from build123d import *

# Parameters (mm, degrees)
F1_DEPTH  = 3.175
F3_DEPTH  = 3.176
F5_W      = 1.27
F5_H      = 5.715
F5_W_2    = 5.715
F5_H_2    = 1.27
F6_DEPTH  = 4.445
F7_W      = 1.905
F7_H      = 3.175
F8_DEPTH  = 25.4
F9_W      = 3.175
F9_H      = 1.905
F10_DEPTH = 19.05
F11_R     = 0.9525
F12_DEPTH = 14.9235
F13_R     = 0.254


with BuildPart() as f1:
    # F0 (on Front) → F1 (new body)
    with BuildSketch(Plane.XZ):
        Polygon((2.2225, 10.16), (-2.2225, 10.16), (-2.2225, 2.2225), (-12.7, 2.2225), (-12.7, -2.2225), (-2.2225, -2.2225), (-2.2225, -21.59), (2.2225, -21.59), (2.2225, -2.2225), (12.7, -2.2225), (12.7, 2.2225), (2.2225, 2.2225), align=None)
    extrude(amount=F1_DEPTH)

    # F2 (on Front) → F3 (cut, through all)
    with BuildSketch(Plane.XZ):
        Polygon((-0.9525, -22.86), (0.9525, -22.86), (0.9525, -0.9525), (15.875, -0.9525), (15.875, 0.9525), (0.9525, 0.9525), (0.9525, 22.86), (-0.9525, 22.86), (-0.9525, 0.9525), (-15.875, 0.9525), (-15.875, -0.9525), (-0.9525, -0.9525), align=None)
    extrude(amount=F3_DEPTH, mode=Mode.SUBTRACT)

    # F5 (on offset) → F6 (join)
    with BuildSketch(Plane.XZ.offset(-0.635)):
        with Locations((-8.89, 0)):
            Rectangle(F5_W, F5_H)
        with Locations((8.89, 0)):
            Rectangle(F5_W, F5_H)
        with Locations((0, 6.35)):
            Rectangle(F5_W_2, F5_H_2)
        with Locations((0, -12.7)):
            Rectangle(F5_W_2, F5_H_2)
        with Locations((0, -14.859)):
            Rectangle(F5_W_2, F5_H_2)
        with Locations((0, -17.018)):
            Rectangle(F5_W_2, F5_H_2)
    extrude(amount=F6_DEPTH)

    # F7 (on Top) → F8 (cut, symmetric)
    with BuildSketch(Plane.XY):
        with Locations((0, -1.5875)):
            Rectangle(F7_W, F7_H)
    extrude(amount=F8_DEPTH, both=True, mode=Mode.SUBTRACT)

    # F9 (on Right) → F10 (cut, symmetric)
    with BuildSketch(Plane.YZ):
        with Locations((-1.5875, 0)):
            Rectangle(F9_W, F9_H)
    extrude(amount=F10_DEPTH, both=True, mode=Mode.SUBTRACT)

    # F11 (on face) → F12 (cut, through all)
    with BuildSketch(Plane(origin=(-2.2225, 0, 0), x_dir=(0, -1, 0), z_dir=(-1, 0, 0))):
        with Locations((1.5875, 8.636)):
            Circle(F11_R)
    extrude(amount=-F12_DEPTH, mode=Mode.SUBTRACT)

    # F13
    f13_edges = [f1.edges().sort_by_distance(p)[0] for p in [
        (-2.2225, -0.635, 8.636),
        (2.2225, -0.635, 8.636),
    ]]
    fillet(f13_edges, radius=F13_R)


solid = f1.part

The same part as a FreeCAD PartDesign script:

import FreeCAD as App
import Part
import Sketcher

V = App.Vector
Q = App.Units.Quantity


def edges_at(feature, points):
    """Names of the edges that pass closest to the given points."""
    edges = feature.Shape.Edges
    near = lambda p: min(range(len(edges)), key=lambda i: edges[i].distToShape(Part.Vertex(*p))[0])
    return sorted({f"Edge{near(p) + 1}" for p in points})


def add_polygon(sketch, points):
    """Adds a closed chain of lines whose ends are joined by coincident constraints."""
    first, n = sketch.GeometryCount, len(points)
    for a, b in zip(points, points[1:] + points[:1]):
        sketch.addGeometry(Part.LineSegment(App.Vector(*a, 0), App.Vector(*b, 0)), False)
    for i in range(n):
        sketch.addConstraint(Sketcher.Constraint("Coincident", first + i, 2, first + (i + 1) % n, 1))

doc = App.newDocument("Part")
body = doc.addObject("PartDesign::Body", "Body")
body.AllowCompound = True

sketch1 = doc.addObject("Sketcher::SketchObject", "Sketch")
body.addObject(sketch1)
sketch1.AttachmentSupport = (doc.XZ_Plane, [""])
sketch1.MapMode = "FlatFace"
add_polygon(sketch1, [(2.2225, 10.16), (-2.2225, 10.16), (-2.2225, 2.2225), (-12.7, 2.2225), (-12.7, -2.2225), (-2.2225, -2.2225), (-2.2225, -21.59), (2.2225, -21.59), (2.2225, -2.2225), (12.7, -2.2225), (12.7, 2.2225), (2.2225, 2.2225)])
sketch1.addConstraint(Sketcher.Constraint("Horizontal", 0))
sketch1.addConstraint(Sketcher.Constraint("Vertical", 1))
sketch1.addConstraint(Sketcher.Constraint("Horizontal", 2))
sketch1.addConstraint(Sketcher.Constraint("Vertical", 3))
sketch1.addConstraint(Sketcher.Constraint("Horizontal", 4))
sketch1.addConstraint(Sketcher.Constraint("Vertical", 5))
sketch1.addConstraint(Sketcher.Constraint("Horizontal", 6))
sketch1.addConstraint(Sketcher.Constraint("Vertical", 7))
sketch1.addConstraint(Sketcher.Constraint("Horizontal", 8))
sketch1.addConstraint(Sketcher.Constraint("Vertical", 9))
sketch1.addConstraint(Sketcher.Constraint("Horizontal", 10))
sketch1.addConstraint(Sketcher.Constraint("Vertical", 11))
sketch1.addConstraint(Sketcher.Constraint("Symmetric", 1, 2, 7, 2, -1, 1))
sketch1.addConstraint(Sketcher.Constraint("Symmetric", 3, 2, 9, 2, -1, 1))
sketch1.addConstraint(Sketcher.Constraint("Symmetric", 4, 2, 7, 2, -2))
sketch1.addConstraint(Sketcher.Constraint("Vertical", 7, 2, 10, 2))
sketch1.addConstraint(Sketcher.Constraint("Equal", 6, 3))
sketch1.addConstraint(Sketcher.Constraint("DistanceY", -1, 1, 0, 2, Q("0.4 in")))
sketch1.addConstraint(Sketcher.Constraint("DistanceX", 2, 2, -1, 1, Q("0.5 in")))
sketch1.addConstraint(Sketcher.Constraint("DistanceX", 0, 2, 0, 1, Q("0.175 in")))
sketch1.addConstraint(Sketcher.Constraint("DistanceY", 5, 2, -1, 1, Q("0.85 in")))
pad1 = doc.addObject("PartDesign::Pad", "Pad")
body.addObject(pad1)
pad1.Profile = sketch1
pad1.Length = Q("0.125 in")

sketch2 = doc.addObject("Sketcher::SketchObject", "Sketch001")
body.addObject(sketch2)
sketch2.AttachmentSupport = (doc.XZ_Plane, [""])
sketch2.MapMode = "FlatFace"
add_polygon(sketch2, [(-0.9525, -22.86), (0.9525, -22.86), (0.9525, -0.9525), (15.875, -0.9525), (15.875, 0.9525), (0.9525, 0.9525), (0.9525, 22.86), (-0.9525, 22.86), (-0.9525, 0.9525), (-15.875, 0.9525), (-15.875, -0.9525), (-0.9525, -0.9525)])
sketch2.addConstraint(Sketcher.Constraint("Horizontal", 0))
sketch2.addConstraint(Sketcher.Constraint("Vertical", 1))
sketch2.addConstraint(Sketcher.Constraint("Horizontal", 2))
sketch2.addConstraint(Sketcher.Constraint("Vertical", 3))
sketch2.addConstraint(Sketcher.Constraint("Horizontal", 4))
sketch2.addConstraint(Sketcher.Constraint("Vertical", 5))
sketch2.addConstraint(Sketcher.Constraint("Horizontal", 6))
sketch2.addConstraint(Sketcher.Constraint("Vertical", 7))
sketch2.addConstraint(Sketcher.Constraint("Horizontal", 8))
sketch2.addConstraint(Sketcher.Constraint("Vertical", 9))
sketch2.addConstraint(Sketcher.Constraint("Horizontal", 10))
sketch2.addConstraint(Sketcher.Constraint("Vertical", 11))
sketch2.addConstraint(Sketcher.Constraint("Symmetric", 0, 2, 6, 2, -1, 1))
sketch2.addConstraint(Sketcher.Constraint("Symmetric", 2, 2, 8, 2, -1, 1))
sketch2.addConstraint(Sketcher.Constraint("Symmetric", 4, 2, 10, 2, -1, 1))
sketch2.addConstraint(Sketcher.Constraint("Symmetric", 4, 2, 7, 2, -2))
sketch2.addConstraint(Sketcher.Constraint("Equal", 6, 3))
sketch2.addConstraint(Sketcher.Constraint("DistanceY", 0, 2, -1, 1, Q("0.9 in")))
sketch2.addConstraint(Sketcher.Constraint("DistanceX", 0, 1, 0, 2, Q("0.075 in")))
sketch2.addConstraint(Sketcher.Constraint("DistanceX", 2, 1, 2, 2, Q("0.5875 in")))
pocket1 = doc.addObject("PartDesign::Pocket", "Pocket")
body.addObject(pocket1)
pocket1.Profile = sketch2
pocket1.Type = "ThroughAll"
pocket1.Reversed = True

sketch3 = doc.addObject("Sketcher::SketchObject", "Sketch002")
body.addObject(sketch3)
sketch3.AttachmentSupport = (doc.XZ_Plane, [""])
sketch3.MapMode = "FlatFace"
sketch3.AttachmentOffset = App.Placement(V(0, 0, -0.025 * 25.4), App.Rotation())
add_polygon(sketch3, [(-9.525, 2.8575), (-9.525, -2.8575), (-8.255, -2.8575), (-8.255, 2.8575)])
add_polygon(sketch3, [(8.255, 2.8575), (8.255, -2.8575), (9.525, -2.8575), (9.525, 2.8575)])
add_polygon(sketch3, [(-2.8575, 6.985), (-2.8575, 5.715), (2.8575, 5.715), (2.8575, 6.985)])
add_polygon(sketch3, [(-2.8575, -12.065), (-2.8575, -13.335), (2.8575, -13.335), (2.8575, -12.065)])
add_polygon(sketch3, [(-2.8575, -14.224), (-2.8575, -15.494), (2.8575, -15.494), (2.8575, -14.224)])
add_polygon(sketch3, [(-2.8575, -16.383), (-2.8575, -17.653), (2.8575, -17.653), (2.8575, -16.383)])
sketch3.addConstraint(Sketcher.Constraint("Vertical", 0))
sketch3.addConstraint(Sketcher.Constraint("Horizontal", 1))
sketch3.addConstraint(Sketcher.Constraint("Vertical", 2))
sketch3.addConstraint(Sketcher.Constraint("Horizontal", 3))
sketch3.addConstraint(Sketcher.Constraint("Vertical", 4))
sketch3.addConstraint(Sketcher.Constraint("Horizontal", 5))
sketch3.addConstraint(Sketcher.Constraint("Vertical", 6))
sketch3.addConstraint(Sketcher.Constraint("Horizontal", 7))
sketch3.addConstraint(Sketcher.Constraint("Vertical", 8))
sketch3.addConstraint(Sketcher.Constraint("Horizontal", 9))
sketch3.addConstraint(Sketcher.Constraint("Vertical", 10))
sketch3.addConstraint(Sketcher.Constraint("Horizontal", 11))
sketch3.addConstraint(Sketcher.Constraint("Vertical", 12))
sketch3.addConstraint(Sketcher.Constraint("Horizontal", 13))
sketch3.addConstraint(Sketcher.Constraint("Vertical", 14))
sketch3.addConstraint(Sketcher.Constraint("Horizontal", 15))
sketch3.addConstraint(Sketcher.Constraint("Vertical", 16))
sketch3.addConstraint(Sketcher.Constraint("Horizontal", 17))
sketch3.addConstraint(Sketcher.Constraint("Vertical", 18))
sketch3.addConstraint(Sketcher.Constraint("Horizontal", 19))
sketch3.addConstraint(Sketcher.Constraint("Vertical", 20))
sketch3.addConstraint(Sketcher.Constraint("Horizontal", 21))
sketch3.addConstraint(Sketcher.Constraint("Vertical", 22))
sketch3.addConstraint(Sketcher.Constraint("Horizontal", 23))
sketch3.addConstraint(Sketcher.Constraint("Symmetric", 2, 2, 4, 2, -1, 1))
sketch3.addConstraint(Sketcher.Constraint("Symmetric", 0, 2, 6, 2, -1, 1))
sketch3.addConstraint(Sketcher.Constraint("Horizontal", 1, 2, 4, 2))
sketch3.addConstraint(Sketcher.Constraint("Vertical", 11, 2, 12, 2))
sketch3.addConstraint(Sketcher.Constraint("Vertical", 10, 2, 13, 2))
sketch3.addConstraint(Sketcher.Constraint("Vertical", 15, 2, 16, 2))
sketch3.addConstraint(Sketcher.Constraint("Vertical", 14, 2, 17, 2))
sketch3.addConstraint(Sketcher.Constraint("Vertical", 19, 2, 20, 2))
sketch3.addConstraint(Sketcher.Constraint("Vertical", 18, 2, 21, 2))
sketch3.addConstraint(Sketcher.Constraint("Equal", 23, 0))
sketch3.addConstraint(Sketcher.Constraint("Equal", 7, 8))
sketch3.addConstraint(Sketcher.Constraint("Equal", 10, 12))
sketch3.addConstraint(Sketcher.Constraint("Equal", 14, 16))
sketch3.addConstraint(Sketcher.Constraint("Equal", 18, 20))
sketch3.addConstraint(Sketcher.Constraint("DistanceX", 1, 1, 1, 2, Q("0.05 in")))
sketch3.addConstraint(Sketcher.Constraint("DistanceX", 0, 2, 4, 2, Q("0.7 in")))
sketch3.addConstraint(Sketcher.Constraint("DistanceX", 9, 1, 9, 2, Q("0.225 in")))
sketch3.addConstraint(Sketcher.Constraint("DistanceY", 16, 2, -1, 1, Q("0.61 in")))
sketch3.addConstraint(Sketcher.Constraint("DistanceY", 20, 2, 12, 2, Q("0.17 in")))
sketch3.addConstraint(Sketcher.Constraint("DistanceY", -1, 1, 8, 2, Q("0.225 in")))
sketch3.addConstraint(Sketcher.Constraint("DistanceY", 12, 2, -1, 1, Q("0.525 in")))
sketch3.addConstraint(Sketcher.Constraint("DistanceX", 8, 2, 7, 2, Q("0.4375 in")))
pad2 = doc.addObject("PartDesign::Pad", "Pad001")
body.addObject(pad2)
pad2.Profile = sketch3
pad2.Length = Q("0.175 in")

sketch4 = doc.addObject("Sketcher::SketchObject", "Sketch003")
body.addObject(sketch4)
sketch4.AttachmentSupport = (doc.XY_Plane, [""])
sketch4.MapMode = "FlatFace"
add_polygon(sketch4, [(-0.9525, 0), (-0.9525, -3.175), (0.9525, -3.175), (0.9525, 0)])
sketch4.addConstraint(Sketcher.Constraint("Vertical", 0))
sketch4.addConstraint(Sketcher.Constraint("Horizontal", 1))
sketch4.addConstraint(Sketcher.Constraint("Vertical", 2))
sketch4.addConstraint(Sketcher.Constraint("Horizontal", 3))
sketch4.addConstraint(Sketcher.Constraint("Symmetric", 2, 2, 3, 2, -1, 1))
sketch4.addConstraint(Sketcher.Constraint("DistanceX", 1, 1, 1, 2, Q("0.075 in")))
sketch4.addConstraint(Sketcher.Constraint("DistanceY", 0, 2, 0, 1, Q("0.125 in")))
pocket2 = doc.addObject("PartDesign::Pocket", "Pocket001")
body.addObject(pocket2)
pocket2.Profile = sketch4
pocket2.Length = Q("2 in")
pocket2.Midplane = True

sketch5 = doc.addObject("Sketcher::SketchObject", "Sketch004")
body.addObject(sketch5)
sketch5.AttachmentSupport = (doc.YZ_Plane, [""])
sketch5.MapMode = "FlatFace"
add_polygon(sketch5, [(-3.175, 0.9525), (-3.175, -0.9525), (0, -0.9525), (0, 0.9525)])
sketch5.addConstraint(Sketcher.Constraint("Vertical", 0))
sketch5.addConstraint(Sketcher.Constraint("Horizontal", 1))
sketch5.addConstraint(Sketcher.Constraint("Vertical", 2))
sketch5.addConstraint(Sketcher.Constraint("Horizontal", 3))
sketch5.addConstraint(Sketcher.Constraint("Symmetric", 1, 2, 2, 2, -1, 1))
sketch5.addConstraint(Sketcher.Constraint("DistanceX", 1, 1, 1, 2, Q("0.125 in")))
sketch5.addConstraint(Sketcher.Constraint("DistanceY", 0, 2, 0, 1, Q("0.075 in")))
pocket3 = doc.addObject("PartDesign::Pocket", "Pocket002")
body.addObject(pocket3)
pocket3.Profile = sketch5
pocket3.Length = Q("1.5 in")
pocket3.Midplane = True

sketch6 = doc.addObject("Sketcher::SketchObject", "Sketch005")
body.addObject(sketch6)
sketch6.AttachmentSupport = (doc.YZ_Plane, [""])
sketch6.MapMode = "FlatFace"
sketch6.AttachmentOffset = App.Placement(V(0, 0, -0.0875 * 25.4), App.Rotation())
sketch6.addGeometry(Part.Circle(V(-1.5875, 8.636, 0), V(0, 0, 1), 0.9525), False)
sketch6.addConstraint(Sketcher.Constraint("Diameter", 0, Q("0.075 in")))
sketch6.addConstraint(Sketcher.Constraint("DistanceY", -1, 1, 0, 3, Q("0.34 in")))
sketch6.addConstraint(Sketcher.Constraint("DistanceX", 0, 3, -1, 1, Q("0.0625 in")))
pocket4 = doc.addObject("PartDesign::Pocket", "Pocket003")
body.addObject(pocket4)
pocket4.Profile = sketch6
pocket4.Type = "ThroughAll"
pocket4.Reversed = True
doc.recompute()

fillet = doc.addObject("PartDesign::Fillet", "Fillet")
body.addObject(fillet)
fillet.Base = (pocket4, edges_at(pocket4, [(-2.223, -0.635, 8.636), (2.223, -0.635, 8.636)]))
fillet.Radius = Q("0.01 in")

doc.recompute()
